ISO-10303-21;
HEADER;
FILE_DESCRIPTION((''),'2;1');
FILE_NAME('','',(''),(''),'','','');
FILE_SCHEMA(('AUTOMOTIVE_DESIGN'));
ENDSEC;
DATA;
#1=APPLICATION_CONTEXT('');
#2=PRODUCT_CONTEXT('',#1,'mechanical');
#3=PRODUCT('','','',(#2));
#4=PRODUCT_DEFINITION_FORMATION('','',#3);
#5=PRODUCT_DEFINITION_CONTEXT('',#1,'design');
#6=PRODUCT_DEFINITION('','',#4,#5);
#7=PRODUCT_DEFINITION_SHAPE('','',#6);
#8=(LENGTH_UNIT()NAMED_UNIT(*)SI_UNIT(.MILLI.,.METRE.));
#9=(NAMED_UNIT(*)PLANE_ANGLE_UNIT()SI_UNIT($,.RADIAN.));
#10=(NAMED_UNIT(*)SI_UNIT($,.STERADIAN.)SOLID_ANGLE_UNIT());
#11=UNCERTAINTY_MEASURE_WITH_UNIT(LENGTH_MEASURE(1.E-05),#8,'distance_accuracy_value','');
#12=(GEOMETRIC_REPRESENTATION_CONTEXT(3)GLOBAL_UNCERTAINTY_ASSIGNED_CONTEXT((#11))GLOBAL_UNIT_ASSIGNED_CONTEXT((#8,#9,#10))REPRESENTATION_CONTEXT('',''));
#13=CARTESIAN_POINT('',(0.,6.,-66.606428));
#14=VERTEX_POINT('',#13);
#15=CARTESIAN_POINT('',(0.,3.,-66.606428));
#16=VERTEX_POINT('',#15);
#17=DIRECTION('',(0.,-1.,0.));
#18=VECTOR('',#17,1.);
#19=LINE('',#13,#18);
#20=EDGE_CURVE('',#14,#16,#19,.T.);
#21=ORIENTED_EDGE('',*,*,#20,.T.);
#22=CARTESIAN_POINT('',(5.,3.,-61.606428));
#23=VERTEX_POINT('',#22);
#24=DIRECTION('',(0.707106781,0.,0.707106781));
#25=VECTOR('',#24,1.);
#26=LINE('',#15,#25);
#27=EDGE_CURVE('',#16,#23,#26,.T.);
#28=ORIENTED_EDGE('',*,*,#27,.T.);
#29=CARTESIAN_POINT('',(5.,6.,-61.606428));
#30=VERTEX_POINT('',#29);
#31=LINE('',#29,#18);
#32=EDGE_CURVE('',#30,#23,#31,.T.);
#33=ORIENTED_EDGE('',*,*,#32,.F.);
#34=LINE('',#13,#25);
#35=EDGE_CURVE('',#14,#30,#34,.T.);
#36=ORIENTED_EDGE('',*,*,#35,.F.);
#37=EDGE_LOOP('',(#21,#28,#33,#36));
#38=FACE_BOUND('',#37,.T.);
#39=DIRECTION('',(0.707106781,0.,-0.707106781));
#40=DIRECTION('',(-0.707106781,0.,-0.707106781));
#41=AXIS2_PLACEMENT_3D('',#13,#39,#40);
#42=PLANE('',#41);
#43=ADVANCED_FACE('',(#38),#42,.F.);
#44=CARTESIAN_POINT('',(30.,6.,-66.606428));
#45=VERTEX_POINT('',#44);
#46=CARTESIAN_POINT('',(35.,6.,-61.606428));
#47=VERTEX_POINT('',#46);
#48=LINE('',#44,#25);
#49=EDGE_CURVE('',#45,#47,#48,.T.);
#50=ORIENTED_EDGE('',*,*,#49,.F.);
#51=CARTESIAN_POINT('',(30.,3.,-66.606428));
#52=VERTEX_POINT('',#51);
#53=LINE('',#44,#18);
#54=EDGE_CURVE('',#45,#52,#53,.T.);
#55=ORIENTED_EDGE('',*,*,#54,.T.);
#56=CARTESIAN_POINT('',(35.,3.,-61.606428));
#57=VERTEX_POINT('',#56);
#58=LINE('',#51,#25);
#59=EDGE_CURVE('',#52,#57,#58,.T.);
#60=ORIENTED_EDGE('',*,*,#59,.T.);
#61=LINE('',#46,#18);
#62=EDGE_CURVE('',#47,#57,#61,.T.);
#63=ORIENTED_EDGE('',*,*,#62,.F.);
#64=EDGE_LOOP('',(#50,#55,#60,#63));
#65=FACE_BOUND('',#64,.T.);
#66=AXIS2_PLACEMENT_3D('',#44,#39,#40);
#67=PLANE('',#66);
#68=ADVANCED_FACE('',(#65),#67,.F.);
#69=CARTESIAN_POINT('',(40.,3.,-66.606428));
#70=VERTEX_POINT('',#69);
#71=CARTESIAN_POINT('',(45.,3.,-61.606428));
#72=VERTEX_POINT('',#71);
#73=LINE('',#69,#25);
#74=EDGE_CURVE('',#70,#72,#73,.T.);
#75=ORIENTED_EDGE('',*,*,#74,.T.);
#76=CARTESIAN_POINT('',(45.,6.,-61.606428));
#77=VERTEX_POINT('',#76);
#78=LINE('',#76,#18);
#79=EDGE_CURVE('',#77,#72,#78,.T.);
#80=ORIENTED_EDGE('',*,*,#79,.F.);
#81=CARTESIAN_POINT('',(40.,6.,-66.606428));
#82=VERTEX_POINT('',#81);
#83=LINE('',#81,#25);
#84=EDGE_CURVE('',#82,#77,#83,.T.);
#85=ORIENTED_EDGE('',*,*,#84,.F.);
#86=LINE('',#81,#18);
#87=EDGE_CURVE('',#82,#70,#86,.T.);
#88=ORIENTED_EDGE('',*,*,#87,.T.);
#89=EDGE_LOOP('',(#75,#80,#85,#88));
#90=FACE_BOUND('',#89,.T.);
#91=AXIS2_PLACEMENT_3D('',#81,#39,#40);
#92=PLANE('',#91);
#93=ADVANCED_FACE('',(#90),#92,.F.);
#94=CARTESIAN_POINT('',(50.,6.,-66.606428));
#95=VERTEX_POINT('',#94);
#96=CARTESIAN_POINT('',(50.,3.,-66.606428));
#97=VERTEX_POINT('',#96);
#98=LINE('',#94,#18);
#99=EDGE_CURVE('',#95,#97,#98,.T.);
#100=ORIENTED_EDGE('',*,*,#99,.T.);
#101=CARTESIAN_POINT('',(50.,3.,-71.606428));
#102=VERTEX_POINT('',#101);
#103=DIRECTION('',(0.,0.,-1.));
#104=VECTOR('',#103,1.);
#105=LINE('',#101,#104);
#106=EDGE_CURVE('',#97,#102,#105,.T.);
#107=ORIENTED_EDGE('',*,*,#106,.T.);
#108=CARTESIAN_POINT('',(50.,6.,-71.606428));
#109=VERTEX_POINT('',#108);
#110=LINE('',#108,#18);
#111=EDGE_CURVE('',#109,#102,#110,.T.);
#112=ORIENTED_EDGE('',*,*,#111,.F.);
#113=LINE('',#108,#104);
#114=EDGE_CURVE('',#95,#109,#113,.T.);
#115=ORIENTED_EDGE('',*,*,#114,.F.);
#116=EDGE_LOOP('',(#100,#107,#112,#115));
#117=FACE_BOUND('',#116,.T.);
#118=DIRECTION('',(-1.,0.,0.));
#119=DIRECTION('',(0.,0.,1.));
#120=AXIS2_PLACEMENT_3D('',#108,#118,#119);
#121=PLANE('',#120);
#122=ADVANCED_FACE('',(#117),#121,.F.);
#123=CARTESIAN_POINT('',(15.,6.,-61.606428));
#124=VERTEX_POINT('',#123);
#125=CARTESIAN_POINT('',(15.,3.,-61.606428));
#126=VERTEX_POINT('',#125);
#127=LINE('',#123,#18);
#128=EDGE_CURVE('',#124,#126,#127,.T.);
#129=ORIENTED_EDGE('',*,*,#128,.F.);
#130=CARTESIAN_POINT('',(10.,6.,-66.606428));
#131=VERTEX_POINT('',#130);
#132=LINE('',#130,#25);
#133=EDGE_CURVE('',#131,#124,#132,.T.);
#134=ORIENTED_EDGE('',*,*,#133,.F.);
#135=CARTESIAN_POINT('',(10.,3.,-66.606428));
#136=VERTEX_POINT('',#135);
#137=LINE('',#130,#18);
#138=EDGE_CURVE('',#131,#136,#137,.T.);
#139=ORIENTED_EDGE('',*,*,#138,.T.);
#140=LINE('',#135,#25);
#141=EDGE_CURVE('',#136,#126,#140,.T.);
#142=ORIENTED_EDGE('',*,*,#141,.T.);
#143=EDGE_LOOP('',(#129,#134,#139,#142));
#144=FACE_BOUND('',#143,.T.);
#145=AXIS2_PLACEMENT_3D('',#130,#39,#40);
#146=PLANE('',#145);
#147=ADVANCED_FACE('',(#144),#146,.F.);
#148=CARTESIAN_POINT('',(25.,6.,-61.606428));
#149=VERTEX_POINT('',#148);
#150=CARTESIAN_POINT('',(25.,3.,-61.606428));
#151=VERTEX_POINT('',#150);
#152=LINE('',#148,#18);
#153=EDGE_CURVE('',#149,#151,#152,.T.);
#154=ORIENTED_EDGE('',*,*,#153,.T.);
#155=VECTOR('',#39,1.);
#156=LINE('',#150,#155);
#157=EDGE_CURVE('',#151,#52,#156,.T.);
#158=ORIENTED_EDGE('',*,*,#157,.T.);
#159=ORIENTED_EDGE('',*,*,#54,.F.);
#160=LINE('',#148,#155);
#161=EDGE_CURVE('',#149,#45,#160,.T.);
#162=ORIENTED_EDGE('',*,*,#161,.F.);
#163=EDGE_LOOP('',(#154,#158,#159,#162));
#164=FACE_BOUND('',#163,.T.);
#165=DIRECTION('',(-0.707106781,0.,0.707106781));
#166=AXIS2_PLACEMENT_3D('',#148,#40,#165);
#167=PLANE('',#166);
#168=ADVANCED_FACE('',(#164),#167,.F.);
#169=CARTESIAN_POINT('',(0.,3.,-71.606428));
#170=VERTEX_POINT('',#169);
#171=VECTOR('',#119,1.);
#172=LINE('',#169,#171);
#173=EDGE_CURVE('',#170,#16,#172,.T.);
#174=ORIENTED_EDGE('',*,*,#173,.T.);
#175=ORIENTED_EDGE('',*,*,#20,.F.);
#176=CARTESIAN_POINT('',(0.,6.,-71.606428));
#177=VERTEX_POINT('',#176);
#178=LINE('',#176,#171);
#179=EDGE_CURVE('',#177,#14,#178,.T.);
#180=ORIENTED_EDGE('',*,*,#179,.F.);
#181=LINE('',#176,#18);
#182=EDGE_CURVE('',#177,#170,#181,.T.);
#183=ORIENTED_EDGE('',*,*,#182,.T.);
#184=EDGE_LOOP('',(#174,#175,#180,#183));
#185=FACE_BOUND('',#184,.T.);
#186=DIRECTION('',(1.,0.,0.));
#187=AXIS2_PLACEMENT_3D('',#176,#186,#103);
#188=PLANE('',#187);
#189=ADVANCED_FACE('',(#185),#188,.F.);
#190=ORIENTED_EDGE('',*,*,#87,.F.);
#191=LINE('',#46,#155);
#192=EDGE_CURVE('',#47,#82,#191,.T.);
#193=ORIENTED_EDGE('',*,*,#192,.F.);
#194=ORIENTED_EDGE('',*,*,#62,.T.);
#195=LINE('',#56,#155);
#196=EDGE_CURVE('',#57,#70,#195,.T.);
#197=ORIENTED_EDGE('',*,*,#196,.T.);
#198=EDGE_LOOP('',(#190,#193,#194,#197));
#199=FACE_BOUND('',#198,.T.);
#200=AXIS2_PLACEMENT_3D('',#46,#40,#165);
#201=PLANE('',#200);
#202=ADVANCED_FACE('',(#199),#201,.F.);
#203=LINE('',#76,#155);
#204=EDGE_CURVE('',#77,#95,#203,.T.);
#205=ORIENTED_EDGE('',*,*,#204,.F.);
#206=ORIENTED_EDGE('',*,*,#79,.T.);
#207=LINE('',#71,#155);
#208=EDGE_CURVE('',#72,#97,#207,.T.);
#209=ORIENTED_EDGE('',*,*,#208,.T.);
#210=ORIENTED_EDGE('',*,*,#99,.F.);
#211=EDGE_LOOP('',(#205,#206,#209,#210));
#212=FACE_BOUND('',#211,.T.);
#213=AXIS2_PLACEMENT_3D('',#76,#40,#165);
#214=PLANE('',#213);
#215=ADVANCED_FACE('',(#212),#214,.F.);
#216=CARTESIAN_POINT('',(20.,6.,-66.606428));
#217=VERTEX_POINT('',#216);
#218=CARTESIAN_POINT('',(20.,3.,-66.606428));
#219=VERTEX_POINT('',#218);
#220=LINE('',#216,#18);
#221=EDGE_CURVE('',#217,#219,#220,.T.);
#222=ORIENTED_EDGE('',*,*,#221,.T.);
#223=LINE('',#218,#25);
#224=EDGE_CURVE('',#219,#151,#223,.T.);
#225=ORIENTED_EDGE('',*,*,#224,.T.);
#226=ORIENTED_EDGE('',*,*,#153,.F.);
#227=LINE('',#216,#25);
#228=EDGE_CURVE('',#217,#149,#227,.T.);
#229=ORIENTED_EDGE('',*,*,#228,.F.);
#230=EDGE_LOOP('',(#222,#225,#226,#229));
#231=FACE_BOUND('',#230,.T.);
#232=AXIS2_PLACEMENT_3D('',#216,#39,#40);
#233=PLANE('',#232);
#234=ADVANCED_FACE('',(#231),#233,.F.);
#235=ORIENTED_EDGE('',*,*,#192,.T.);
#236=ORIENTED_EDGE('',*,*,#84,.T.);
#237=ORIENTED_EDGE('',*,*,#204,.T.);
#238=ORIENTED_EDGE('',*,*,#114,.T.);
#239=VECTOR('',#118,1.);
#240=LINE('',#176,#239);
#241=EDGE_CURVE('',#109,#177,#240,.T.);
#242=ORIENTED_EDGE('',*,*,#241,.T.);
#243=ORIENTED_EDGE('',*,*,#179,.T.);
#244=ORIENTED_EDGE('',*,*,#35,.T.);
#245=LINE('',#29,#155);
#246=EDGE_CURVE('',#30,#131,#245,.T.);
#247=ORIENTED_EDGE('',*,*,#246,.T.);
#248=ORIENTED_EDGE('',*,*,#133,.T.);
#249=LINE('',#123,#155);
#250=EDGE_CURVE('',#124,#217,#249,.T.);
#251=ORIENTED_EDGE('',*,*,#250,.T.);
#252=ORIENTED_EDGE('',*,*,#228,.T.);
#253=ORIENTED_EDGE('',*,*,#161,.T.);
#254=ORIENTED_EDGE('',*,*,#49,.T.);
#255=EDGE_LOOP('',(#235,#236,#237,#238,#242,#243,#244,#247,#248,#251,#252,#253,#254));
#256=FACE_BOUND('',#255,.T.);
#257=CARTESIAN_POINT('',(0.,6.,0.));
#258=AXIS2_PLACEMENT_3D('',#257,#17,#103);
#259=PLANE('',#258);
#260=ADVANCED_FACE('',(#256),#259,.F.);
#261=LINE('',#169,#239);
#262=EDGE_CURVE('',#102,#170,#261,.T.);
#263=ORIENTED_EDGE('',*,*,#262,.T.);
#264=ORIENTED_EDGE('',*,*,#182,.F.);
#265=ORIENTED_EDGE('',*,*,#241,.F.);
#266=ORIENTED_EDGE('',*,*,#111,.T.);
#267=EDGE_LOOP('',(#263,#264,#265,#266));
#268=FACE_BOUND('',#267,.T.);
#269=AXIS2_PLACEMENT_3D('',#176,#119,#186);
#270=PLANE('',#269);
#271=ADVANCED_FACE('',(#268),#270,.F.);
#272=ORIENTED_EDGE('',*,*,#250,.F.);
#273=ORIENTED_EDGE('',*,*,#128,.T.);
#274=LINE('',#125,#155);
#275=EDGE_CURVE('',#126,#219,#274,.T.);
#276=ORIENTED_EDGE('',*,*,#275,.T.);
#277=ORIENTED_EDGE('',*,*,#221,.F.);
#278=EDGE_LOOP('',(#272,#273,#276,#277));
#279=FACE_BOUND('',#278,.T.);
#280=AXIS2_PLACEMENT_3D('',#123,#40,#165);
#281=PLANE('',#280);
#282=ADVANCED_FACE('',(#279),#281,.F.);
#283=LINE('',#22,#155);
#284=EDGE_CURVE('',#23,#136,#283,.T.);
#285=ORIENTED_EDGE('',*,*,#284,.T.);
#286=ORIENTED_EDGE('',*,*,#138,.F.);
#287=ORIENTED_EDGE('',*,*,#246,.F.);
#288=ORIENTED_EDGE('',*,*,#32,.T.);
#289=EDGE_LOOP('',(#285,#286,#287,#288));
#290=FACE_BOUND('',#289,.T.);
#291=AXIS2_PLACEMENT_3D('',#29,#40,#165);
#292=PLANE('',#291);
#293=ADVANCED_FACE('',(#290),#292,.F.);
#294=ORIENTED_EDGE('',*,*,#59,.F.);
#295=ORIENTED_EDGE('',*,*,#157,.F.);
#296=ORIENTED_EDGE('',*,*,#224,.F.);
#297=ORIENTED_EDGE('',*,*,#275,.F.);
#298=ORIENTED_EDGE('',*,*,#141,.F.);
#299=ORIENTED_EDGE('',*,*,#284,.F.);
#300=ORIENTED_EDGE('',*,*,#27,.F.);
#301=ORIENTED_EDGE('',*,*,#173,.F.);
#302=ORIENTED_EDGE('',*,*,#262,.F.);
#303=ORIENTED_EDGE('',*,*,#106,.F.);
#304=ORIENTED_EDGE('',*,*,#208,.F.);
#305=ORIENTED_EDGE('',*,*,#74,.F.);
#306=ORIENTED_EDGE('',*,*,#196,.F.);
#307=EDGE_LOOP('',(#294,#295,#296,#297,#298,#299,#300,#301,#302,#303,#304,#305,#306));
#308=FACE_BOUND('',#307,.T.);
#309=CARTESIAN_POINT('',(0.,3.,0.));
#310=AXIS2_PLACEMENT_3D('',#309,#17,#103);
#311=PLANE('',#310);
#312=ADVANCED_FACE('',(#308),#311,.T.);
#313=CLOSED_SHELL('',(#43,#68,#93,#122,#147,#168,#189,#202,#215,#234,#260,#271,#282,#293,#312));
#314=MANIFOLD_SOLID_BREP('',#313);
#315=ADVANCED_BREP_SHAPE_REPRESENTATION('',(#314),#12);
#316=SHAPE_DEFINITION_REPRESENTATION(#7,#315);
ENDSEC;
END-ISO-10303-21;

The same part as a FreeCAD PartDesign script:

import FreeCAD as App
import Part
import Sketcher
Q = App.Units.Quantity

doc = App.newDocument("Part")
body = doc.addObject("PartDesign::Body", "Body")

sketch1 = body.newObject("Sketcher::SketchObject", "Sketch")
sketch1.AttachmentSupport = (doc.getObject("XZ_Plane"), [""])
sketch1.MapMode = "FlatFace"
sketch1.AttachmentOffset = App.Placement(App.Vector(0, 0, -3), App.Rotation())
sketch1.addGeometry(Part.LineSegment(App.Vector(0, -71.606428, 0), App.Vector(0, -66.606428, 0)), False)
sketch1.addGeometry(Part.LineSegment(App.Vector(0, -66.606428, 0), App.Vector(5, -61.606428, 0)), False)
sketch1.addGeometry(Part.LineSegment(App.Vector(5, -61.606428, 0), App.Vector(10, -66.606428, 0)), False)
sketch1.addGeometry(Part.LineSegment(App.Vector(10, -66.606428, 0), App.Vector(15, -61.606428, 0)), False)
sketch1.addGeometry(Part.LineSegment(App.Vector(15, -61.606428, 0), App.Vector(20, -66.606428, 0)), False)
sketch1.addGeometry(Part.LineSegment(App.Vector(20, -66.606428, 0), App.Vector(25, -61.606428, 0)), False)
sketch1.addGeometry(Part.LineSegment(App.Vector(25, -61.606428, 0), App.Vector(30, -66.606428, 0)), False)
sketch1.addGeometry(Part.LineSegment(App.Vector(30, -66.606428, 0), App.Vector(35, -61.606428, 0)), False)
sketch1.addGeometry(Part.LineSegment(App.Vector(35, -61.606428, 0), App.Vector(40, -66.606428, 0)), False)
sketch1.addGeometry(Part.LineSegment(App.Vector(40, -66.606428, 0), App.Vector(45, -61.606428, 0)), False)
sketch1.addGeometry(Part.LineSegment(App.Vector(45, -61.606428, 0), App.Vector(50, -66.606428, 0)), False)
sketch1.addGeometry(Part.LineSegment(App.Vector(50, -66.606428, 0), App.Vector(50, -71.606428, 0)), False)
sketch1.addGeometry(Part.LineSegment(App.Vector(50, -71.606428, 0), App.Vector(0, -71.606428, 0)), False)
sketch1.addConstraint(Sketcher.Constraint("Coincident", 0, 2, 1, 1))
sketch1.addConstraint(Sketcher.Constraint("Coincident", 1, 2, 2, 1))
sketch1.addConstraint(Sketcher.Constraint("Coincident", 2, 2, 3, 1))
sketch1.addConstraint(Sketcher.Constraint("Coincident", 3, 2, 4, 1))
sketch1.addConstraint(Sketcher.Constraint("Coincident", 4, 2, 5, 1))
sketch1.addConstraint(Sketcher.Constraint("Coincident", 5, 2, 6, 1))
sketch1.addConstraint(Sketcher.Constraint("Coincident", 6, 2, 7, 1))
sketch1.addConstraint(Sketcher.Constraint("Coincident", 7, 2, 8, 1))
sketch1.addConstraint(Sketcher.Constraint("Coincident", 8, 2, 9, 1))
sketch1.addConstraint(Sketcher.Constraint("Coincident", 9, 2, 10, 1))
sketch1.addConstraint(Sketcher.Constraint("Coincident", 10, 2, 11, 1))
sketch1.addConstraint(Sketcher.Constraint("Coincident", 11, 2, 12, 1))
sketch1.addConstraint(Sketcher.Constraint("Coincident", 12, 2, 0, 1))
sketch1.addConstraint(Sketcher.Constraint("Vertical", 0))
sketch1.addConstraint(Sketcher.Constraint("Vertical", 11))
sketch1.addConstraint(Sketcher.Constraint("Horizontal", 12))
sketch1.addConstraint(Sketcher.Constraint("PointOnObject", 0, 2, -2))
sketch1.addConstraint(Sketcher.Constraint("Perpendicular", 1, 2))
sketch1.addConstraint(Sketcher.Constraint("Perpendicular", 2, 3))
sketch1.addConstraint(Sketcher.Constraint("Perpendicular", 3, 4))
sketch1.addConstraint(Sketcher.Constraint("Perpendicular", 4, 5))
sketch1.addConstraint(Sketcher.Constraint("Perpendicular", 5, 6))
sketch1.addConstraint(Sketcher.Constraint("Perpendicular", 6, 7))
sketch1.addConstraint(Sketcher.Constraint("Perpendicular", 7, 8))
sketch1.addConstraint(Sketcher.Constraint("Perpendicular", 8, 9))
sketch1.addConstraint(Sketcher.Constraint("Perpendicular", 9, 10))
sketch1.addConstraint(Sketcher.Constraint("Horizontal", 0, 2, 2, 2))
sketch1.addConstraint(Sketcher.Constraint("Horizontal", 1, 2, 3, 2))
sketch1.addConstraint(Sketcher.Constraint("Horizontal", 2, 2, 4, 2))
sketch1.addConstraint(Sketcher.Constraint("Horizontal", 3, 2, 5, 2))
sketch1.addConstraint(Sketcher.Constraint("Horizontal", 4, 2, 6, 2))
sketch1.addConstraint(Sketcher.Constraint("Horizontal", 5, 2, 7, 2))
sketch1.addConstraint(Sketcher.Constraint("Horizontal", 6, 2, 8, 2))
sketch1.addConstraint(Sketcher.Constraint("Horizontal", 7, 2, 9, 2))
sketch1.addConstraint(Sketcher.Constraint("Horizontal", 8, 2, 10, 2))
sketch1.addConstraint(Sketcher.Constraint("Equal", 1, 2))
sketch1.addConstraint(Sketcher.Constraint("DistanceX", 12, 2, 12, 1, Q("50 mm")))
sketch1.addConstraint(Sketcher.Constraint("DistanceY", 0, 1, 0, 2, Q("5 mm")))
sketch1.addConstraint(Sketcher.Constraint("DistanceY", 0, 2, -1, 1, Q("66.606428 mm")))
pad1 = body.newObject("PartDesign::Pad", "Pad")
pad1.Profile = sketch1
pad1.Length = 3
pad1.Reversed = True

doc.recompute()
